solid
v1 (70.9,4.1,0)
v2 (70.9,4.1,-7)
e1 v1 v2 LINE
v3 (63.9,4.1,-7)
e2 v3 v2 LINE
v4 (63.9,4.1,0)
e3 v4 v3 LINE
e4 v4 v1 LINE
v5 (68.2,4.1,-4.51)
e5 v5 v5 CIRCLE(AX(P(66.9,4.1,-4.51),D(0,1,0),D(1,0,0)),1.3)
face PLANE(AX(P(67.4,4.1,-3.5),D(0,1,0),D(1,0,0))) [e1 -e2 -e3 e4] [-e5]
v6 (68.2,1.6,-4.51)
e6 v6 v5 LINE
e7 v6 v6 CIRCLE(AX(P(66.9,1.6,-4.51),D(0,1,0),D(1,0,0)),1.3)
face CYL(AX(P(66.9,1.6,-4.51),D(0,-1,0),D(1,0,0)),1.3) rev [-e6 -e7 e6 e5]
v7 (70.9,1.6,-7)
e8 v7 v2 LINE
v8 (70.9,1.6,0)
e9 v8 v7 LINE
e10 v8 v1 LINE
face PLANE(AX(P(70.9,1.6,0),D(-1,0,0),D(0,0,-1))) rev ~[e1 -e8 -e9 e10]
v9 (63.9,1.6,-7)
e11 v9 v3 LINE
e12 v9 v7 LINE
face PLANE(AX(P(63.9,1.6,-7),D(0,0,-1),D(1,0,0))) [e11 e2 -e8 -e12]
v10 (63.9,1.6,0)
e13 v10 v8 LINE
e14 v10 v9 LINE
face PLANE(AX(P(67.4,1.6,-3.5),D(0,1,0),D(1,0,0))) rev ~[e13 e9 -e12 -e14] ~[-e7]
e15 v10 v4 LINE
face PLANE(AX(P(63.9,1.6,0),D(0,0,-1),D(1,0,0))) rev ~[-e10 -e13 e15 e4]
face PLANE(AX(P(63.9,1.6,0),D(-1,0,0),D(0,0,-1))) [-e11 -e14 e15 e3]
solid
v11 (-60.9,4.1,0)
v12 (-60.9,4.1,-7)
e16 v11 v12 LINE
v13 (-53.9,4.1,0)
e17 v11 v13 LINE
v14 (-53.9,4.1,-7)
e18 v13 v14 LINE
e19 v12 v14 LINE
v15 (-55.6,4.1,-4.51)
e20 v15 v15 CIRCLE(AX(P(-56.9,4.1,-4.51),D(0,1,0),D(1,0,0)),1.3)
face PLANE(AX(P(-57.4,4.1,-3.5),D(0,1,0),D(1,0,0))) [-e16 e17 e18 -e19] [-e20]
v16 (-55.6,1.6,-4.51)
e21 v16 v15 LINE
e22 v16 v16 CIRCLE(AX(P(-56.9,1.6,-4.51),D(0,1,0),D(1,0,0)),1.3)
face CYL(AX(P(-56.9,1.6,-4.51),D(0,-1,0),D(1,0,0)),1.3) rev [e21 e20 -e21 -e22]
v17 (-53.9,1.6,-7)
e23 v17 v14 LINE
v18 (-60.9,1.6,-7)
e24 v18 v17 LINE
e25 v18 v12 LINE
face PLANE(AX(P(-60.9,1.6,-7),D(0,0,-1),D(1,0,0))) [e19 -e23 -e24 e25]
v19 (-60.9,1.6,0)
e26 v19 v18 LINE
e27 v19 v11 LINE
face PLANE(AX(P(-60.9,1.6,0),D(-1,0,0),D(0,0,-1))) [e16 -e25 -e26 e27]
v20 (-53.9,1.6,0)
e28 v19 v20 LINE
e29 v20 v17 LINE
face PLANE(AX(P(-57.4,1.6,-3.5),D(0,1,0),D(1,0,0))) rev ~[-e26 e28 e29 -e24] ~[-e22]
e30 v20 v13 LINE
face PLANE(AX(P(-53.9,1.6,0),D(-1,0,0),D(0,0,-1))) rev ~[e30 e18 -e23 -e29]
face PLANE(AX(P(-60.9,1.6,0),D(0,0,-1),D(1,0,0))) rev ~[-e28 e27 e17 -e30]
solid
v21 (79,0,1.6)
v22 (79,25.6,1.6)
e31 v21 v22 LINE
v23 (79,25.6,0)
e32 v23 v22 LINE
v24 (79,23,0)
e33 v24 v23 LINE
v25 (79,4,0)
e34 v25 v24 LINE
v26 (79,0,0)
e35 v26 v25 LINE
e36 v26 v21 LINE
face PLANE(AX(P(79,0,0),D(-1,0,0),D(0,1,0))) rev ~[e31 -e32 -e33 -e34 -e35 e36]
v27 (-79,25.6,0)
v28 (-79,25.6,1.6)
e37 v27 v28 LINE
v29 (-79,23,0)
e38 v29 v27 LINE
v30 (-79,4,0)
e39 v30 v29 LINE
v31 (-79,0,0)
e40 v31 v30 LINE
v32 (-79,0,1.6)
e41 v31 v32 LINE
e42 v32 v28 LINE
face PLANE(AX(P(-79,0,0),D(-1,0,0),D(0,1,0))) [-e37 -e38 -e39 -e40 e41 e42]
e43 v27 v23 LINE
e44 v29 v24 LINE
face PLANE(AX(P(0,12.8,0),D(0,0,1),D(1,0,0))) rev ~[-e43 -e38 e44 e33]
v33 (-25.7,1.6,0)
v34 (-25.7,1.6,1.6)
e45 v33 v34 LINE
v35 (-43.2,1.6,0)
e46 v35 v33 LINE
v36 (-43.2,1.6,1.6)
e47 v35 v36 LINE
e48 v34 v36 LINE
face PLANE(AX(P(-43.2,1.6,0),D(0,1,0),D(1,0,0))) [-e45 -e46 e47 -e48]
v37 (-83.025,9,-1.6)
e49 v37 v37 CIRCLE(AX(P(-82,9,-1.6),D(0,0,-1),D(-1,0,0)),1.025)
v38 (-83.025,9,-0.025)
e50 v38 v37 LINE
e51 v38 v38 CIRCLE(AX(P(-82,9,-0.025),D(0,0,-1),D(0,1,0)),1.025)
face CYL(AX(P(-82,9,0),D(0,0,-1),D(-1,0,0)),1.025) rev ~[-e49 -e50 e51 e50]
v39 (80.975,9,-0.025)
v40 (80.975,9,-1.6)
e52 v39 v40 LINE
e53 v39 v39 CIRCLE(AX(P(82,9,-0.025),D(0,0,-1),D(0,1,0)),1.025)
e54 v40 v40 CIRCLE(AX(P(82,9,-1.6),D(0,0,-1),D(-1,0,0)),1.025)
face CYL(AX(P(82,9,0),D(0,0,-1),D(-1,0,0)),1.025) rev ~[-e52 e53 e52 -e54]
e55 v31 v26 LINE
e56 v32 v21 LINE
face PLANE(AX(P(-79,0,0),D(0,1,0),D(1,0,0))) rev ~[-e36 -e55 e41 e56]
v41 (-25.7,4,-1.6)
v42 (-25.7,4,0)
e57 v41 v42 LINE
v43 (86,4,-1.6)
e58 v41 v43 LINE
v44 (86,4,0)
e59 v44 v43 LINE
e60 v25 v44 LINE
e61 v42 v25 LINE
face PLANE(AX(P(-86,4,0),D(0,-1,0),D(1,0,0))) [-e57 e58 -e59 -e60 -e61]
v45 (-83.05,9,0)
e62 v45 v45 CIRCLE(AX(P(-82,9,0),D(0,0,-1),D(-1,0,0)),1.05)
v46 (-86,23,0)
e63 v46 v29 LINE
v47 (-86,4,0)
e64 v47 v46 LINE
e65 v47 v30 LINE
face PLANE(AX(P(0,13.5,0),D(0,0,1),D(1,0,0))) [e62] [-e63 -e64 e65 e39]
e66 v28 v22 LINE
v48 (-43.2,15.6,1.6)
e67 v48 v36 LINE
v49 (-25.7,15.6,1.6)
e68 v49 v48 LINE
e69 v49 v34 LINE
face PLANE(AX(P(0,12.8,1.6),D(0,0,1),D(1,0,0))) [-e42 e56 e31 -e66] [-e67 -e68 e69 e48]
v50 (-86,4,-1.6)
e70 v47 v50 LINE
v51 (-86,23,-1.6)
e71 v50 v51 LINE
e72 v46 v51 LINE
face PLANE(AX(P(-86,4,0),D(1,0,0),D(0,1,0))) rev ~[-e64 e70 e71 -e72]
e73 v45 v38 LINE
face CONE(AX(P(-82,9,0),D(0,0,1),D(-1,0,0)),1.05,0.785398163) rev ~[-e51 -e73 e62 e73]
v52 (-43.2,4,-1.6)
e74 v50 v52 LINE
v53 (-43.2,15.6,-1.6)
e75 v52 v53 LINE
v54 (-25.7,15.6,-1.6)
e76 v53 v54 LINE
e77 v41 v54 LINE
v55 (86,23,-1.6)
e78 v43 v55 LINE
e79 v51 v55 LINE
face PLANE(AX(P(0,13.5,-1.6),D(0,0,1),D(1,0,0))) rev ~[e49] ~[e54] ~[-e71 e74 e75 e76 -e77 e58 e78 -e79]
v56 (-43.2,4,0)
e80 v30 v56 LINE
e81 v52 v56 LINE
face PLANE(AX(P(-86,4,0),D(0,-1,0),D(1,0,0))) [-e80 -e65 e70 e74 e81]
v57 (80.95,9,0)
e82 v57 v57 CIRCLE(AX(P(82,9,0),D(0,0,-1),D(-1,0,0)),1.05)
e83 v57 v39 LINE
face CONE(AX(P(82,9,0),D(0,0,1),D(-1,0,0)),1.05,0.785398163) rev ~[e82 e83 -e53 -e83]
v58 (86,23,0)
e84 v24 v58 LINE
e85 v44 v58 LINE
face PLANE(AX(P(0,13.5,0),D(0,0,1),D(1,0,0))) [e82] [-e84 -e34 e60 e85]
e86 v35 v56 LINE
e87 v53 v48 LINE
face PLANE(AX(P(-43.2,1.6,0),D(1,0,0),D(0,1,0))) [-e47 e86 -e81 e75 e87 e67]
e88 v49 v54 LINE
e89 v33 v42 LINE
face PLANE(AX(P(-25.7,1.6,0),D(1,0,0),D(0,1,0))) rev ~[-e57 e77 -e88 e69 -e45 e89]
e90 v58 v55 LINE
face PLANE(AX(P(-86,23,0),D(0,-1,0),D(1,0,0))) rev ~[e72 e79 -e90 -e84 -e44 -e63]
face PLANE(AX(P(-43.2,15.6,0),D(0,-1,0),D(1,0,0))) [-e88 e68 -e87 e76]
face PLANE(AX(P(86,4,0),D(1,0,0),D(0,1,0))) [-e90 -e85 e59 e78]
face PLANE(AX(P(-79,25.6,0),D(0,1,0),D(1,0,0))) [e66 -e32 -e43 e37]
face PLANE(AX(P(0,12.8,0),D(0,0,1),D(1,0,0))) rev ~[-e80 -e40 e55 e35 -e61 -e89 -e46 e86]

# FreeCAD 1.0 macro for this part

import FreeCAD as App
import Part
import Sketcher


def add_polygon(sketch, points):
    """Adds a closed chain of lines whose ends are joined by coincident constraints."""
    first, n = sketch.GeometryCount, len(points)
    for a, b in zip(points, points[1:] + points[:1]):
        sketch.addGeometry(Part.LineSegment(App.Vector(*a, 0), App.Vector(*b, 0)), False)
    for i in range(n):
        sketch.addConstraint(Sketcher.Constraint("Coincident", first + i, 2, first + (i + 1) % n, 1))

doc = App.newDocument("Part")
body = doc.addObject("PartDesign::Body", "Body")

# Sketch on XY plane
sketch1 = body.newObject("Sketcher::SketchObject", "Sketch")
sketch1.AttachmentSupport = (doc.getObject("XY_Plane"), [""])
sketch1.MapMode = "FlatFace"
add_polygon(sketch1, [(-79, 25.6), (-79, 0), (79, 0), (79, 25.6)])  # lines 0-3
sketch1.addConstraint([
    Sketcher.Constraint("Vertical", 0),
    Sketcher.Constraint("Horizontal", 1),
    Sketcher.Constraint("Vertical", 2),
    Sketcher.Constraint("Horizontal", 3),
    Sketcher.Constraint("Symmetric", 0, 2, 1, 2, -1, 1),
    Sketcher.Constraint("DistanceX", 1, 1, 1, 2, 158.0),
    Sketcher.Constraint("DistanceY", 0, 2, 0, 1, 25.6),
])
pad1 = body.newObject("PartDesign::Pad", "Pad")
pad1.Profile = sketch1
pad1.Length = 1.6

# Sketch on XY plane
sketch2 = body.newObject("Sketcher::SketchObject", "Sketch001")
sketch2.AttachmentSupport = (doc.getObject("XY_Plane"), [""])
sketch2.MapMode = "FlatFace"
add_polygon(sketch2, [(-86, 23), (-86, 4), (86, 4), (86, 23)])  # lines 0-3
sketch2.addConstraint([
    Sketcher.Constraint("Vertical", 0),
    Sketcher.Constraint("Horizontal", 1),
    Sketcher.Constraint("Vertical", 2),
    Sketcher.Constraint("Horizontal", 3),
    Sketcher.Constraint("DistanceX", 1, 1, 1, 2, 172.0),
    Sketcher.Constraint("DistanceY", 0, 2, 0, 1, 19.0),
    Sketcher.Constraint("DistanceX", 0, 2, -1, 1, 86.0),
    Sketcher.Constraint("DistanceY", -1, 1, 0, 2, 4.0),
])
pad2 = body.newObject("PartDesign::Pad", "Pad001")
pad2.Profile = sketch2
pad2.Length = 1.6
pad2.Reversed = True

# Sketch on XY plane
sketch3 = body.newObject("Sketcher::SketchObject", "Sketch002")
sketch3.AttachmentSupport = (doc.getObject("XY_Plane"), [""])
sketch3.MapMode = "FlatFace"
sketch3.addGeometry([
    Part.Circle(App.Vector(-82, 9, 0), App.Vector(0, 0, 1), 1.025),
    Part.Circle(App.Vector(82, 9, 0), App.Vector(0, 0, 1), 1.025),
], False)
sketch3.addConstraint([
    Sketcher.Constraint("Equal", 0, 1),
    Sketcher.Constraint("Symmetric", 0, 3, 1, 3, -2),
    Sketcher.Constraint("Diameter", 0, 2.05),
    Sketcher.Constraint("DistanceX", 0, 3, -1, 1, 82.0),
    Sketcher.Constraint("DistanceY", -1, 1, 0, 3, 9.0),
])
doc.recompute()
hole = body.newObject("PartDesign::Hole", "Hole")
hole.Profile = sketch3
hole.ThreadType = "None"
hole.Diameter = 2.05
hole.DepthType = "ThroughAll"
hole.HoleCutType = "Countersink"
hole.HoleCutDiameter = 2.1
hole.HoleCutCountersinkAngle = 90

# Sketch on XY plane
sketch4 = body.newObject("Sketcher::SketchObject", "Sketch003")
sketch4.AttachmentSupport = (doc.getObject("XY_Plane"), [""])
sketch4.MapMode = "FlatFace"
add_polygon(sketch4, [(-43.2, 15.6), (-43.2, 1.6), (-25.7, 1.6), (-25.7, 15.6)])  # lines 0-3
sketch4.addConstraint([
    Sketcher.Constraint("Vertical", 0),
    Sketcher.Constraint("Horizontal", 1),
    Sketcher.Constraint("Vertical", 2),
    Sketcher.Constraint("Horizontal", 3),
    Sketcher.Constraint("DistanceY", 0, 2, 0, 1, 14.0),
    Sketcher.Constraint("DistanceX", 1, 1, 1, 2, 17.5),
    Sketcher.Constraint("DistanceX", 0, 2, -1, 1, 43.2),
    Sketcher.Constraint("DistanceY", -1, 1, 0, 2, 1.6),
])
pocket1 = body.newObject("PartDesign::Pocket", "Pocket")
pocket1.Profile = sketch4
pocket1.Type = "ThroughAll"
pocket1.Midplane = True
body2 = doc.addObject("PartDesign::Body", "Body001")

# Sketch on XZ plane
sketch5 = body2.newObject("Sketcher::SketchObject", "Sketch004")
sketch5.AttachmentSupport = (doc.getObject("XZ_Plane001"), [""])
sketch5.MapMode = "FlatFace"
sketch5.AttachmentOffset = App.Placement(App.Vector(0, 0, -1.6), App.Rotation())
add_polygon(sketch5, [(-60.9, -7), (-60.9, 0), (-53.9, 0), (-53.9, -7)])  # lines 0-3
sketch5.addGeometry(Part.Circle(App.Vector(-56.9, -4.51, 0), App.Vector(0, 0, 1), 1.3), False)  # 4
sketch5.addConstraint([
    Sketcher.Constraint("Vertical", 0),
    Sketcher.Constraint("Horizontal", 1),
    Sketcher.Constraint("Vertical", 2),
    Sketcher.Constraint("Horizontal", 3),
    Sketcher.Constraint("PointOnObject", 0, 2, -1),
    Sketcher.Constraint("Equal", 3, 0),
    Sketcher.Constraint("Diameter", 4, 2.6),
    Sketcher.Constraint("DistanceX", 1, 1, 1, 2, 7.0),
    Sketcher.Constraint("DistanceX", 0, 2, 4, 3, 4.0),
    Sketcher.Constraint("DistanceX", 4, 3, -1, 1, 56.9),
    Sketcher.Constraint("DistanceY", 4, 3, -1, 1, 4.51),
])
pad3 = body2.newObject("PartDesign::Pad", "Pad002")
pad3.Profile = sketch5
pad3.Length = 2.5
pad3.Reversed = True
body3 = doc.addObject("PartDesign::Body", "Body002")

# Sketch on XZ plane
sketch6 = body3.newObject("Sketcher::SketchObject", "Sketch005")
sketch6.AttachmentSupport = (doc.getObject("XZ_Plane002"), [""])
sketch6.MapMode = "FlatFace"
sketch6.AttachmentOffset = App.Placement(App.Vector(0, 0, -1.6), App.Rotation())
add_polygon(sketch6, [(63.9, -7), (63.9, 0), (70.9, 0), (70.9, -7)])  # lines 0-3
sketch6.addGeometry(Part.Circle(App.Vector(66.9, -4.51, 0), App.Vector(0, 0, 1), 1.3), False)  # 4
sketch6.addConstraint([
    Sketcher.Constraint("Vertical", 0),
    Sketcher.Constraint("Horizontal", 1),
    Sketcher.Constraint("Vertical", 2),
    Sketcher.Constraint("Horizontal", 3),
    Sketcher.Constraint("PointOnObject", 0, 2, -1),
    Sketcher.Constraint("Equal", 3, 0),
    Sketcher.Constraint("Diameter", 4, 2.6),
    Sketcher.Constraint("DistanceX", 1, 1, 1, 2, 7.0),
    Sketcher.Constraint("DistanceX", 0, 2, 4, 3, 3.0),
    Sketcher.Constraint("DistanceX", -1, 1, 4, 3, 66.9),
    Sketcher.Constraint("DistanceY", 4, 3, -1, 1, 4.51),
])
pad4 = body3.newObject("PartDesign::Pad", "Pad003")
pad4.Profile = sketch6
pad4.Length = 2.5
pad4.Reversed = True

doc.recompute()
